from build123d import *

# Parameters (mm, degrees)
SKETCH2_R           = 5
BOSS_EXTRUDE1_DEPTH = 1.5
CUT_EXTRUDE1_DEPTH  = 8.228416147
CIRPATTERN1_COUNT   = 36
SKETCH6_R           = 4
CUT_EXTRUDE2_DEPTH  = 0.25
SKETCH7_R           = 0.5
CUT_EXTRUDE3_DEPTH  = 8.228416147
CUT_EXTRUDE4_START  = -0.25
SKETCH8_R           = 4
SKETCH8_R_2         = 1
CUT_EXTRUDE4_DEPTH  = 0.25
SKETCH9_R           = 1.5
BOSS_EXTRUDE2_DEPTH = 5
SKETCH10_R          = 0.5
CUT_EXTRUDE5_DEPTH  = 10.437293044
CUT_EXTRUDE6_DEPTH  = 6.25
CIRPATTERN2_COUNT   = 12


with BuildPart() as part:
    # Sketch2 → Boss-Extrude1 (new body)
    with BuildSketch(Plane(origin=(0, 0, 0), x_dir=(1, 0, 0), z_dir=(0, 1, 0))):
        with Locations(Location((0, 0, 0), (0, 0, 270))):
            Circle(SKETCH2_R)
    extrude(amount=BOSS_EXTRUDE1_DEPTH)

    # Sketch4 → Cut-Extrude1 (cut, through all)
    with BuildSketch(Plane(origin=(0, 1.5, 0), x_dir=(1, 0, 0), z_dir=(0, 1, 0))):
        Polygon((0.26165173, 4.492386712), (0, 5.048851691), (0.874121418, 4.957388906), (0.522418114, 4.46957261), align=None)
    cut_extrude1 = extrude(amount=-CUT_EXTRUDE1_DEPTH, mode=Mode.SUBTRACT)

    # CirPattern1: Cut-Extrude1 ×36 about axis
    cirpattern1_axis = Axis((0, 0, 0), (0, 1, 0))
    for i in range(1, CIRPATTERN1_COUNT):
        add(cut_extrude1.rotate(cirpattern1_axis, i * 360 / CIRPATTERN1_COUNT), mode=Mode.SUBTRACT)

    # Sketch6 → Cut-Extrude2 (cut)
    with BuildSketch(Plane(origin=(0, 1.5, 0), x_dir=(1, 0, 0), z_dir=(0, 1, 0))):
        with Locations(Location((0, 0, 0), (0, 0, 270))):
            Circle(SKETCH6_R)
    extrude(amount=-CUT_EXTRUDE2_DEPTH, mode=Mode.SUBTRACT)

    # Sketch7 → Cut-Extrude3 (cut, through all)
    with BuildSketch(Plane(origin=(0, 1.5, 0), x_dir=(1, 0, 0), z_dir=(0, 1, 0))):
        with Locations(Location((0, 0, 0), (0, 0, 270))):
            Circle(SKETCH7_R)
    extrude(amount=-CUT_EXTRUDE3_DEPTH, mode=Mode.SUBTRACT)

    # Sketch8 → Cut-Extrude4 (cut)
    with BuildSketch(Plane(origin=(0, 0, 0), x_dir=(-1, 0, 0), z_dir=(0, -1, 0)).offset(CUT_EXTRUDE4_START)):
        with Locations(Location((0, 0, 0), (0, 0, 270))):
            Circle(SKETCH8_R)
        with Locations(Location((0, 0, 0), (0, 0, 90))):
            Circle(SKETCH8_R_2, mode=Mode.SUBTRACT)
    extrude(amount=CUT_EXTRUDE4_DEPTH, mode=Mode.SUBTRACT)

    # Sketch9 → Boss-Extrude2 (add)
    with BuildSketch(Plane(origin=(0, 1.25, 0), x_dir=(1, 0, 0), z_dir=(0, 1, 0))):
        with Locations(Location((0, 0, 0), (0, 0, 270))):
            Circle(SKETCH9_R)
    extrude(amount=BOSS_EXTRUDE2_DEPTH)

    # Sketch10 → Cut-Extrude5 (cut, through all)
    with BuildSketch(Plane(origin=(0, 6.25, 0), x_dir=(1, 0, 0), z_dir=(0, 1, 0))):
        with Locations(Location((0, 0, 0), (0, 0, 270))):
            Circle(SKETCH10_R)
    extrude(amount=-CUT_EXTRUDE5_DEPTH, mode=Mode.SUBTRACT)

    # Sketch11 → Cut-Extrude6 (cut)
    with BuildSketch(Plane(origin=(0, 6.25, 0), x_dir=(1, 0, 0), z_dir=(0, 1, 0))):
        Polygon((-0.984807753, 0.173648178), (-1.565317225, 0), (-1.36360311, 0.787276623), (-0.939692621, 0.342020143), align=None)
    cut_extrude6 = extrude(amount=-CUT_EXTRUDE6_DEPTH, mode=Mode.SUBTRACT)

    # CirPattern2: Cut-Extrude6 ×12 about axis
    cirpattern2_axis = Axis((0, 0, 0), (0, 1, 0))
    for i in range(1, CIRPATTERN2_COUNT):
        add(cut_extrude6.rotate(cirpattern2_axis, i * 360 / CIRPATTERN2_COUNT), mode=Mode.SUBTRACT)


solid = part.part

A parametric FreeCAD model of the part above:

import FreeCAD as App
import Part
import Sketcher
Q = App.Units.Quantity


def add_polygon(sketch, points):
    """Adds a closed chain of lines whose ends are joined by coincident constraints."""
    first, n = sketch.GeometryCount, len(points)
    for a, b in zip(points, points[1:] + points[:1]):
        sketch.addGeometry(Part.LineSegment(App.Vector(*a, 0), App.Vector(*b, 0)), False)
    for i in range(n):
        sketch.addConstraint(Sketcher.Constraint("Coincident", first + i, 2, first + (i + 1) % n, 1))

doc = App.newDocument("Part")
params = doc.addObject("Spreadsheet::Sheet", "Params")
for row, (alias, value) in enumerate([
    ("sketch1_diameter", "10 mm"),
    ("pad1_length", "1.5 mm"),
    ("sketch3_diameter", "8 mm"),
    ("pocket2_length", "0.25 mm"),
    ("sketch4_diameter", "1 mm"),
    ("sketch5_diameter", "8 mm"),
    ("sketch5_diameter2", "2 mm"),
    ("pocket4_length", "0.25 mm"),
    ("sketch6_diameter", "3 mm"),
    ("pad2_length", "5 mm"),
    ("sketch7_diameter", "1 mm"),
    ("pocket6_length", "6.25 mm"),
], start=1):
    params.set(f"A{row}", alias)
    params.set(f"B{row}", "=" + value)
    params.setAlias(f"B{row}", alias)

body = doc.addObject("PartDesign::Body", "Body")

sketch1 = body.newObject("Sketcher::SketchObject", "Sketch")
sketch1.AttachmentSupport = (doc.getObject("XZ_Plane"), [""])
sketch1.MapMode = "FlatFace"
sketch1.addGeometry(Part.Circle(App.Vector(0, 0, 0), App.Vector(0, 0, 1), 5), False)
sketch1.addConstraint([
    Sketcher.Constraint("Coincident", 0, 3, -1, 1),
    Sketcher.Constraint("Diameter", 0, 10.0),
])
sketch1.setExpression("Constraints[1]", "Params.sketch1_diameter")
pad1 = body.newObject("PartDesign::Pad", "Pad")
pad1.Profile = sketch1
pad1.setExpression("Length", "Params.pad1_length")
pad1.Reversed = True

sketch2 = body.newObject("Sketcher::SketchObject", "Sketch001")
sketch2.AttachmentSupport = (doc.getObject("XZ_Plane"), [""])
sketch2.MapMode = "FlatFace"
sketch2.AttachmentOffset = App.Placement(App.Vector(0, 0, -1.5), App.Rotation())
add_polygon(sketch2, [(0, -5.048852), (0.261652, -4.492387), (0.522418, -4.469573), (0.874121, -4.957389)])
sketch2.addConstraint([
    Sketcher.Constraint("PointOnObject", 3, 2, -2),
    Sketcher.Constraint("Angle", 1, Q("5 deg")),
    Sketcher.Constraint("Distance", 0, 0.61491),
    Sketcher.Constraint("Distance", 2, 0.601382),
    Sketcher.Constraint("DistanceX", -1, 1, 0, 2, 0.261652),
    Sketcher.Constraint("DistanceX", -1, 1, 1, 2, 0.522418),
    Sketcher.Constraint("DistanceX", -1, 1, 2, 2, 0.874121),
    Sketcher.Constraint("DistanceY", 2, 2, -1, 1, 4.957389),
])
pocket1 = body.newObject("PartDesign::Pocket", "Pocket")
pocket1.Profile = sketch2
pocket1.Type = "ThroughAll"
pocket1.Reversed = True
doc.recompute()

polarpattern = body.newObject("PartDesign::PolarPattern", "PolarPattern")
polarpattern.Originals = [pocket1]
polarpattern.Axis = (doc.getObject("Y_Axis"), [""])
polarpattern.Angle = 360
polarpattern.Occurrences = 36
body.Tip = polarpattern

sketch3 = body.newObject("Sketcher::SketchObject", "Sketch002")
sketch3.AttachmentSupport = (doc.getObject("XZ_Plane"), [""])
sketch3.MapMode = "FlatFace"
sketch3.AttachmentOffset = App.Placement(App.Vector(0, 0, -1.5), App.Rotation())
sketch3.addGeometry(Part.Circle(App.Vector(0, 0, 0), App.Vector(0, 0, 1), 4), False)
sketch3.addConstraint([
    Sketcher.Constraint("Coincident", 0, 3, -1, 1),
    Sketcher.Constraint("Diameter", 0, 8.0),
])
sketch3.setExpression("Constraints[1]", "Params.sketch3_diameter")
pocket2 = body.newObject("PartDesign::Pocket", "Pocket001")
pocket2.Profile = sketch3
pocket2.setExpression("Length", "Params.pocket2_length")
pocket2.Reversed = True

sketch4 = body.newObject("Sketcher::SketchObject", "Sketch003")
sketch4.AttachmentSupport = (doc.getObject("XZ_Plane"), [""])
sketch4.MapMode = "FlatFace"
sketch4.AttachmentOffset = App.Placement(App.Vector(0, 0, -1.5), App.Rotation())
sketch4.addGeometry(Part.Circle(App.Vector(0, 0, 0), App.Vector(0, 0, 1), 0.5), False)
sketch4.addConstraint([
    Sketcher.Constraint("Coincident", 0, 3, -1, 1),
    Sketcher.Constraint("Diameter", 0, 1.0),
])
sketch4.setExpression("Constraints[1]", "Params.sketch4_diameter")
pocket3 = body.newObject("PartDesign::Pocket", "Pocket002")
pocket3.Profile = sketch4
pocket3.Type = "ThroughAll"
pocket3.Reversed = True

sketch5 = body.newObject("Sketcher::SketchObject", "Sketch004")
sketch5.AttachmentSupport = (doc.getObject("XZ_Plane"), [""])
sketch5.MapMode = "FlatFace"
sketch5.AttachmentOffset = App.Placement(App.Vector(0, 0, -0.25), App.Rotation())
sketch5.addGeometry([
    Part.Circle(App.Vector(0, 0, 0), App.Vector(0, 0, 1), 4),
    Part.Circle(App.Vector(0, 0, 0), App.Vector(0, 0, 1), 1),
], False)
sketch5.addConstraint([
    Sketcher.Constraint("Coincident", 0, 3, -1, 1),
    Sketcher.Constraint("Coincident", 1, 3, -1, 1),
    Sketcher.Constraint("Diameter", 0, 8.0),
    Sketcher.Constraint("Diameter", 1, 2.0),
])
sketch5.setExpression("Constraints[2]", "Params.sketch5_diameter")
sketch5.setExpression("Constraints[3]", "Params.sketch5_diameter2")
pocket4 = body.newObject("PartDesign::Pocket", "Pocket003")
pocket4.Profile = sketch5
pocket4.setExpression("Length", "Params.pocket4_length")
pocket4.Reversed = True

sketch6 = body.newObject("Sketcher::SketchObject", "Sketch005")
sketch6.AttachmentSupport = (doc.getObject("XZ_Plane"), [""])
sketch6.MapMode = "FlatFace"
sketch6.AttachmentOffset = App.Placement(App.Vector(0, 0, -1.25), App.Rotation())
sketch6.addGeometry(Part.Circle(App.Vector(0, 0, 0), App.Vector(0, 0, 1), 1.5), False)
sketch6.addConstraint([
    Sketcher.Constraint("Coincident", 0, 3, -1, 1),
    Sketcher.Constraint("Diameter", 0, 3.0),
])
sketch6.setExpression("Constraints[1]", "Params.sketch6_diameter")
pad2 = body.newObject("PartDesign::Pad", "Pad001")
pad2.Profile = sketch6
pad2.setExpression("Length", "Params.pad2_length")
pad2.Reversed = True

sketch7 = body.newObject("Sketcher::SketchObject", "Sketch006")
sketch7.AttachmentSupport = (doc.getObject("XZ_Plane"), [""])
sketch7.MapMode = "FlatFace"
sketch7.AttachmentOffset = App.Placement(App.Vector(0, 0, -6.25), App.Rotation())
sketch7.addGeometry(Part.Circle(App.Vector(0, 0, 0), App.Vector(0, 0, 1), 0.5), False)
sketch7.addConstraint([
    Sketcher.Constraint("Coincident", 0, 3, -1, 1),
    Sketcher.Constraint("Diameter", 0, 1.0),
])
sketch7.setExpression("Constraints[1]", "Params.sketch7_diameter")
pocket5 = body.newObject("PartDesign::Pocket", "Pocket004")
pocket5.Profile = sketch7
pocket5.Type = "ThroughAll"
pocket5.Reversed = True

sketch8 = body.newObject("Sketcher::SketchObject", "Sketch007")
sketch8.AttachmentSupport = (doc.getObject("XZ_Plane"), [""])
sketch8.MapMode = "FlatFace"
sketch8.AttachmentOffset = App.Placement(App.Vector(0, 0, -6.25), App.Rotation())
add_polygon(sketch8, [(-1.565317, 0), (-0.984808, -0.173648), (-0.939693, -0.34202), (-1.363603, -0.787277)])
sketch8.addConstraint([
    Sketcher.Constraint("PointOnObject", 3, 2, -1),
    Sketcher.Constraint("Angle", 1, Q("-75 deg")),
    Sketcher.Constraint("Distance", 1, 0.174311),
    Sketcher.Constraint("Distance", 2, 0.614779),
    Sketcher.Constraint("DistanceY", 0, 2, -1, 1, 0.173648),
    Sketcher.Constraint("DistanceX", 2, 2, 1, 2, 0.42391),
    Sketcher.Constraint("DistanceX", 3, 2, 0, 2, 0.580509),
    Sketcher.Constraint("DistanceX", 0, 2, -1, 1, 0.984808),
])
pocket6 = body.newObject("PartDesign::Pocket", "Pocket005")
pocket6.Profile = sketch8
pocket6.setExpression("Length", "Params.pocket6_length")
pocket6.Reversed = True
doc.recompute()

polarpattern2 = body.newObject("PartDesign::PolarPattern", "PolarPattern001")
polarpattern2.Originals = [pocket6]
polarpattern2.Axis = (doc.getObject("Y_Axis"), [""])
polarpattern2.Angle = 360
polarpattern2.Occurrences = 12
body.Tip = polarpattern2

doc.recompute()
